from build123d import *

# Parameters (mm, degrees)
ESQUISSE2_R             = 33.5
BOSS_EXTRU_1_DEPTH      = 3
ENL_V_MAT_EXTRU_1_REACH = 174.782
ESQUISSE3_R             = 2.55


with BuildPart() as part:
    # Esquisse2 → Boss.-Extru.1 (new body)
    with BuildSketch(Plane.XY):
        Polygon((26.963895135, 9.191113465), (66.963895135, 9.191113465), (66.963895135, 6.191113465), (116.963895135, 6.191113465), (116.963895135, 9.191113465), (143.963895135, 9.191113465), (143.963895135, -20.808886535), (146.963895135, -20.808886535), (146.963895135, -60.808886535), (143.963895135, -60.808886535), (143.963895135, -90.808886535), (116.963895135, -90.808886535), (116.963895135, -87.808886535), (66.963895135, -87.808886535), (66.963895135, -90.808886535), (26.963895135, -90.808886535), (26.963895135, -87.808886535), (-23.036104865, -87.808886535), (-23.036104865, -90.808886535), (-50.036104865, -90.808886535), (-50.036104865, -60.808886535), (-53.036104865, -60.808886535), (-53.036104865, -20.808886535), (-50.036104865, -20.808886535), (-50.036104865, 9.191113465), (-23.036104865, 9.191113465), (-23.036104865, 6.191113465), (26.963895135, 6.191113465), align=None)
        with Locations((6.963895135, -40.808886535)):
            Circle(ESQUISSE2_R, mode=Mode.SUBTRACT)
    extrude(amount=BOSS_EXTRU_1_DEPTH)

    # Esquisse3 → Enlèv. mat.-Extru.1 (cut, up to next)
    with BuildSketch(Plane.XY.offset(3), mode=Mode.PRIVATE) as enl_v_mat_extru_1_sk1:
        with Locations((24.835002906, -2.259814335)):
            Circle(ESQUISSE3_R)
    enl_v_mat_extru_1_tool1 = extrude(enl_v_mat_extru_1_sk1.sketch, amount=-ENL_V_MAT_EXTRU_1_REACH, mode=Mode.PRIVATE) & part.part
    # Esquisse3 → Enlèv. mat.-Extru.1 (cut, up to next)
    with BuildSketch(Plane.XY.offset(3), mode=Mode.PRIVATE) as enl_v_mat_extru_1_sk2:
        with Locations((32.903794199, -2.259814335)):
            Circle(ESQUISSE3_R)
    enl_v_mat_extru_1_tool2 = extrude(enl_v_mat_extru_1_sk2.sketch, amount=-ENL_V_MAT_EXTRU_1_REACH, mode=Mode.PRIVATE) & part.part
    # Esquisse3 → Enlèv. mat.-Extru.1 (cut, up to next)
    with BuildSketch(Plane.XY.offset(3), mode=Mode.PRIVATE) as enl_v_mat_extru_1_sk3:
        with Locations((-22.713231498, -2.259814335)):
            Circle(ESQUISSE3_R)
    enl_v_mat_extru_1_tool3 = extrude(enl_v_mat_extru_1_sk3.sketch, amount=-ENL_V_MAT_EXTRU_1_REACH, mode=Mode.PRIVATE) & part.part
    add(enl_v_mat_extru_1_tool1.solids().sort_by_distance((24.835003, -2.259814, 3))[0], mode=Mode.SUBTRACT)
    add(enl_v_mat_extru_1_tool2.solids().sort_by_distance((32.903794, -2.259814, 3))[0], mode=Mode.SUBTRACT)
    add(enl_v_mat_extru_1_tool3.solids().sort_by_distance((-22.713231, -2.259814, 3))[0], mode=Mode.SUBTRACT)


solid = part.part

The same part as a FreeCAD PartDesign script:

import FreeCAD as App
import Part
import Sketcher

V = App.Vector


def add_polygon(sketch, points):
    """Adds a closed chain of lines whose ends are joined by coincident constraints."""
    first, n = sketch.GeometryCount, len(points)
    for a, b in zip(points, points[1:] + points[:1]):
        sketch.addGeometry(Part.LineSegment(App.Vector(*a, 0), App.Vector(*b, 0)), False)
    for i in range(n):
        sketch.addConstraint(Sketcher.Constraint("Coincident", first + i, 2, first + (i + 1) % n, 1))

doc = App.newDocument("Part")
params = doc.addObject("Spreadsheet::Sheet", "Params")
for row, (alias, value) in enumerate([
    ("sketch1_diameter", "67 mm"),
    ("sketch1_width", "40 mm"),
    ("sketch1_width2", "50 mm"),
    ("sketch1_width3", "27 mm"),
    ("sketch1_width4", "3 mm"),
    ("pad1_length", "3 mm"),
    ("sketch2_diameter", "5.1 mm"),
    ("sketch3_diameter", "5.1 mm"),
    ("sketch4_diameter", "5.1 mm"),
], start=1):
    params.set(f"A{row}", alias)
    params.set(f"B{row}", "=" + value)
    params.setAlias(f"B{row}", alias)

body = doc.addObject("PartDesign::Body", "Body")

# Sketch on XY plane
sketch1 = doc.addObject("Sketcher::SketchObject", "Sketch")
body.addObject(sketch1)
sketch1.AttachmentSupport = (doc.XY_Plane, [""])
sketch1.MapMode = "FlatFace"
add_polygon(sketch1, [(66.963895, 9.191113), (26.963895, 9.191113), (26.963895, 6.191113), (-23.036105, 6.191113), (-23.036105, 9.191113), (-50.036105, 9.191113), (-50.036105, -20.808887), (-53.036105, -20.808887), (-53.036105, -60.808887), (-50.036105, -60.808887), (-50.036105, -90.808887), (-23.036105, -90.808887), (-23.036105, -87.808887), (26.963895, -87.808887), (26.963895, -90.808887), (66.963895, -90.808887), (66.963895, -87.808887), (116.963895, -87.808887), (116.963895, -90.808887), (143.963895, -90.808887), (143.963895, -60.808887), (146.963895, -60.808887), (146.963895, -20.808887), (143.963895, -20.808887), (143.963895, 9.191113), (116.963895, 9.191113), (116.963895, 6.191113), (66.963895, 6.191113)])  # lines 0-27
sketch1.addGeometry(Part.Circle(V(6.963895, -40.808887, 0), V(0, 0, 1), 33.5), False)  # 28
sketch1.addConstraint(Sketcher.Constraint("Horizontal", 0))
sketch1.addConstraint(Sketcher.Constraint("Vertical", 1))
sketch1.addConstraint(Sketcher.Constraint("Horizontal", 2))
sketch1.addConstraint(Sketcher.Constraint("Vertical", 3))
sketch1.addConstraint(Sketcher.Constraint("Horizontal", 4))
sketch1.addConstraint(Sketcher.Constraint("Vertical", 5))
sketch1.addConstraint(Sketcher.Constraint("Horizontal", 6))
sketch1.addConstraint(Sketcher.Constraint("Vertical", 7))
sketch1.addConstraint(Sketcher.Constraint("Horizontal", 8))
sketch1.addConstraint(Sketcher.Constraint("Vertical", 9))
sketch1.addConstraint(Sketcher.Constraint("Horizontal", 10))
sketch1.addConstraint(Sketcher.Constraint("Vertical", 11))
sketch1.addConstraint(Sketcher.Constraint("Horizontal", 12))
sketch1.addConstraint(Sketcher.Constraint("Vertical", 13))
sketch1.addConstraint(Sketcher.Constraint("Horizontal", 14))
sketch1.addConstraint(Sketcher.Constraint("Vertical", 15))
sketch1.addConstraint(Sketcher.Constraint("Horizontal", 16))
sketch1.addConstraint(Sketcher.Constraint("Vertical", 17))
sketch1.addConstraint(Sketcher.Constraint("Horizontal", 18))
sketch1.addConstraint(Sketcher.Constraint("Vertical", 19))
sketch1.addConstraint(Sketcher.Constraint("Horizontal", 20))
sketch1.addConstraint(Sketcher.Constraint("Vertical", 21))
sketch1.addConstraint(Sketcher.Constraint("Horizontal", 22))
sketch1.addConstraint(Sketcher.Constraint("Vertical", 23))
sketch1.addConstraint(Sketcher.Constraint("Horizontal", 24))
sketch1.addConstraint(Sketcher.Constraint("Vertical", 25))
sketch1.addConstraint(Sketcher.Constraint("Horizontal", 26))
sketch1.addConstraint(Sketcher.Constraint("Vertical", 27))
sketch1.addConstraint(Sketcher.Constraint("Horizontal", 0, 2, 3, 2))
sketch1.addConstraint(Sketcher.Constraint("Horizontal", 10, 2, 13, 2))
sketch1.addConstraint(Sketcher.Constraint("Horizontal", 12, 2, 15, 2))
sketch1.addConstraint(Sketcher.Constraint("Horizontal", 14, 2, 17, 2))
sketch1.addConstraint(Sketcher.Constraint("Horizontal", 8, 2, 19, 2))
sketch1.addConstraint(Sketcher.Constraint("Horizontal", 6, 2, 21, 2))
sketch1.addConstraint(Sketcher.Constraint("Horizontal", 4, 2, 23, 2))
sketch1.addConstraint(Sketcher.Constraint("Horizontal", 2, 2, 25, 2))
sketch1.addConstraint(Sketcher.Constraint("Vertical", 5, 2, 8, 2))
sketch1.addConstraint(Sketcher.Constraint("Vertical", 3, 2, 10, 2))
sketch1.addConstraint(Sketcher.Constraint("Vertical", 1, 2, 12, 2))
sketch1.addConstraint(Sketcher.Constraint("Vertical", 19, 2, 22, 2))
sketch1.addConstraint(Sketcher.Constraint("Vertical", 17, 2, 24, 2))
sketch1.addConstraint(Sketcher.Constraint("Vertical", 15, 2, 26, 2))
sketch1.addConstraint(Sketcher.Constraint("Equal", 12, 16))
sketch1.addConstraint(Sketcher.Constraint("Equal", 10, 18))
sketch1.addConstraint(Sketcher.Constraint("Equal", 8, 20))
sketch1.addConstraint(Sketcher.Constraint("Equal", 22, 1))
sketch1.addConstraint(Sketcher.Constraint("Equal", 14, 7))
sketch1.addConstraint(Sketcher.Constraint("Equal", 5, 9))
sketch1.addConstraint(Sketcher.Constraint("Equal", 3, 11))
sketch1.addConstraint(Sketcher.Constraint("Diameter", 28, 67.0))
sketch1.addConstraint(Sketcher.Constraint("DistanceX", 0, 2, 0, 1, 40.0))
sketch1.addConstraint(Sketcher.Constraint("DistanceX", 2, 2, 2, 1, 50.0))
sketch1.addConstraint(Sketcher.Constraint("DistanceX", 4, 2, 4, 1, 27.0))
sketch1.addConstraint(Sketcher.Constraint("DistanceX", 6, 2, 6, 1, 3.0))
sketch1.addConstraint(Sketcher.Constraint("DistanceY", 5, 2, 5, 1, 30.0))
sketch1.addConstraint(Sketcher.Constraint("DistanceX", 28, 3, 0, 2, 20.0))
sketch1.addConstraint(Sketcher.Constraint("DistanceY", 28, 3, 0, 2, 50.0))
sketch1.addConstraint(Sketcher.Constraint("DistanceX", -1, 1, 28, 3, 6.963895))
sketch1.addConstraint(Sketcher.Constraint("DistanceY", 28, 3, -1, 1, 40.808887))
sketch1.setExpression("Constraints[77]", "Params.sketch1_diameter")
sketch1.setExpression("Constraints[78]", "Params.sketch1_width")
sketch1.setExpression("Constraints[79]", "Params.sketch1_width2")
sketch1.setExpression("Constraints[80]", "Params.sketch1_width3")
sketch1.setExpression("Constraints[81]", "Params.sketch1_width4")
pad1 = doc.addObject("PartDesign::Pad", "Pad")
body.addObject(pad1)
pad1.Profile = sketch1
pad1.setExpression("Length", "Params.pad1_length")

# Sketch on XY plane
sketch2 = doc.addObject("Sketcher::SketchObject", "Sketch001")
body.addObject(sketch2)
sketch2.AttachmentSupport = (doc.XY_Plane, [""])
sketch2.MapMode = "FlatFace"
sketch2.AttachmentOffset = App.Placement(V(0, 0, 3), App.Rotation())
sketch2.addGeometry(Part.Circle(V(24.835003, -2.259814, 0), V(0, 0, 1), 2.55), False)
sketch2.addConstraint(Sketcher.Constraint("Diameter", 0, 5.1))
sketch2.addConstraint(Sketcher.Constraint("DistanceX", -1, 1, 0, 3, 24.835003))
sketch2.addConstraint(Sketcher.Constraint("DistanceY", 0, 3, -1, 1, 2.259814))
sketch2.setExpression("Constraints[0]", "Params.sketch2_diameter")
pocket1 = doc.addObject("PartDesign::Pocket", "Pocket")
body.addObject(pocket1)
pocket1.Profile = sketch2
pocket1.Type = "UpToFirst"

# Sketch on XY plane
sketch3 = doc.addObject("Sketcher::SketchObject", "Sketch002")
body.addObject(sketch3)
sketch3.AttachmentSupport = (doc.XY_Plane, [""])
sketch3.MapMode = "FlatFace"
sketch3.AttachmentOffset = App.Placement(V(0, 0, 3), App.Rotation())
sketch3.addGeometry(Part.Circle(V(32.903794, -2.259814, 0), V(0, 0, 1), 2.55), False)
sketch3.addConstraint(Sketcher.Constraint("Diameter", 0, 5.1))
sketch3.addConstraint(Sketcher.Constraint("DistanceX", -1, 1, 0, 3, 32.903794))
sketch3.addConstraint(Sketcher.Constraint("DistanceY", 0, 3, -1, 1, 2.259814))
sketch3.setExpression("Constraints[0]", "Params.sketch3_diameter")
pocket2 = doc.addObject("PartDesign::Pocket", "Pocket001")
body.addObject(pocket2)
pocket2.Profile = sketch3
pocket2.Type = "UpToFirst"

# Sketch on XY plane
sketch4 = doc.addObject("Sketcher::SketchObject", "Sketch003")
body.addObject(sketch4)
sketch4.AttachmentSupport = (doc.XY_Plane, [""])
sketch4.MapMode = "FlatFace"
sketch4.AttachmentOffset = App.Placement(V(0, 0, 3), App.Rotation())
sketch4.addGeometry(Part.Circle(V(-22.713231, -2.259814, 0), V(0, 0, 1), 2.55), False)
sketch4.addConstraint(Sketcher.Constraint("Diameter", 0, 5.1))
sketch4.addConstraint(Sketcher.Constraint("DistanceX", 0, 3, -1, 1, 22.713231))
sketch4.addConstraint(Sketcher.Constraint("DistanceY", 0, 3, -1, 1, 2.259814))
sketch4.setExpression("Constraints[0]", "Params.sketch4_diameter")
pocket3 = doc.addObject("PartDesign::Pocket", "Pocket002")
body.addObject(pocket3)
pocket3.Profile = sketch4
pocket3.Type = "UpToFirst"

doc.recompute()
